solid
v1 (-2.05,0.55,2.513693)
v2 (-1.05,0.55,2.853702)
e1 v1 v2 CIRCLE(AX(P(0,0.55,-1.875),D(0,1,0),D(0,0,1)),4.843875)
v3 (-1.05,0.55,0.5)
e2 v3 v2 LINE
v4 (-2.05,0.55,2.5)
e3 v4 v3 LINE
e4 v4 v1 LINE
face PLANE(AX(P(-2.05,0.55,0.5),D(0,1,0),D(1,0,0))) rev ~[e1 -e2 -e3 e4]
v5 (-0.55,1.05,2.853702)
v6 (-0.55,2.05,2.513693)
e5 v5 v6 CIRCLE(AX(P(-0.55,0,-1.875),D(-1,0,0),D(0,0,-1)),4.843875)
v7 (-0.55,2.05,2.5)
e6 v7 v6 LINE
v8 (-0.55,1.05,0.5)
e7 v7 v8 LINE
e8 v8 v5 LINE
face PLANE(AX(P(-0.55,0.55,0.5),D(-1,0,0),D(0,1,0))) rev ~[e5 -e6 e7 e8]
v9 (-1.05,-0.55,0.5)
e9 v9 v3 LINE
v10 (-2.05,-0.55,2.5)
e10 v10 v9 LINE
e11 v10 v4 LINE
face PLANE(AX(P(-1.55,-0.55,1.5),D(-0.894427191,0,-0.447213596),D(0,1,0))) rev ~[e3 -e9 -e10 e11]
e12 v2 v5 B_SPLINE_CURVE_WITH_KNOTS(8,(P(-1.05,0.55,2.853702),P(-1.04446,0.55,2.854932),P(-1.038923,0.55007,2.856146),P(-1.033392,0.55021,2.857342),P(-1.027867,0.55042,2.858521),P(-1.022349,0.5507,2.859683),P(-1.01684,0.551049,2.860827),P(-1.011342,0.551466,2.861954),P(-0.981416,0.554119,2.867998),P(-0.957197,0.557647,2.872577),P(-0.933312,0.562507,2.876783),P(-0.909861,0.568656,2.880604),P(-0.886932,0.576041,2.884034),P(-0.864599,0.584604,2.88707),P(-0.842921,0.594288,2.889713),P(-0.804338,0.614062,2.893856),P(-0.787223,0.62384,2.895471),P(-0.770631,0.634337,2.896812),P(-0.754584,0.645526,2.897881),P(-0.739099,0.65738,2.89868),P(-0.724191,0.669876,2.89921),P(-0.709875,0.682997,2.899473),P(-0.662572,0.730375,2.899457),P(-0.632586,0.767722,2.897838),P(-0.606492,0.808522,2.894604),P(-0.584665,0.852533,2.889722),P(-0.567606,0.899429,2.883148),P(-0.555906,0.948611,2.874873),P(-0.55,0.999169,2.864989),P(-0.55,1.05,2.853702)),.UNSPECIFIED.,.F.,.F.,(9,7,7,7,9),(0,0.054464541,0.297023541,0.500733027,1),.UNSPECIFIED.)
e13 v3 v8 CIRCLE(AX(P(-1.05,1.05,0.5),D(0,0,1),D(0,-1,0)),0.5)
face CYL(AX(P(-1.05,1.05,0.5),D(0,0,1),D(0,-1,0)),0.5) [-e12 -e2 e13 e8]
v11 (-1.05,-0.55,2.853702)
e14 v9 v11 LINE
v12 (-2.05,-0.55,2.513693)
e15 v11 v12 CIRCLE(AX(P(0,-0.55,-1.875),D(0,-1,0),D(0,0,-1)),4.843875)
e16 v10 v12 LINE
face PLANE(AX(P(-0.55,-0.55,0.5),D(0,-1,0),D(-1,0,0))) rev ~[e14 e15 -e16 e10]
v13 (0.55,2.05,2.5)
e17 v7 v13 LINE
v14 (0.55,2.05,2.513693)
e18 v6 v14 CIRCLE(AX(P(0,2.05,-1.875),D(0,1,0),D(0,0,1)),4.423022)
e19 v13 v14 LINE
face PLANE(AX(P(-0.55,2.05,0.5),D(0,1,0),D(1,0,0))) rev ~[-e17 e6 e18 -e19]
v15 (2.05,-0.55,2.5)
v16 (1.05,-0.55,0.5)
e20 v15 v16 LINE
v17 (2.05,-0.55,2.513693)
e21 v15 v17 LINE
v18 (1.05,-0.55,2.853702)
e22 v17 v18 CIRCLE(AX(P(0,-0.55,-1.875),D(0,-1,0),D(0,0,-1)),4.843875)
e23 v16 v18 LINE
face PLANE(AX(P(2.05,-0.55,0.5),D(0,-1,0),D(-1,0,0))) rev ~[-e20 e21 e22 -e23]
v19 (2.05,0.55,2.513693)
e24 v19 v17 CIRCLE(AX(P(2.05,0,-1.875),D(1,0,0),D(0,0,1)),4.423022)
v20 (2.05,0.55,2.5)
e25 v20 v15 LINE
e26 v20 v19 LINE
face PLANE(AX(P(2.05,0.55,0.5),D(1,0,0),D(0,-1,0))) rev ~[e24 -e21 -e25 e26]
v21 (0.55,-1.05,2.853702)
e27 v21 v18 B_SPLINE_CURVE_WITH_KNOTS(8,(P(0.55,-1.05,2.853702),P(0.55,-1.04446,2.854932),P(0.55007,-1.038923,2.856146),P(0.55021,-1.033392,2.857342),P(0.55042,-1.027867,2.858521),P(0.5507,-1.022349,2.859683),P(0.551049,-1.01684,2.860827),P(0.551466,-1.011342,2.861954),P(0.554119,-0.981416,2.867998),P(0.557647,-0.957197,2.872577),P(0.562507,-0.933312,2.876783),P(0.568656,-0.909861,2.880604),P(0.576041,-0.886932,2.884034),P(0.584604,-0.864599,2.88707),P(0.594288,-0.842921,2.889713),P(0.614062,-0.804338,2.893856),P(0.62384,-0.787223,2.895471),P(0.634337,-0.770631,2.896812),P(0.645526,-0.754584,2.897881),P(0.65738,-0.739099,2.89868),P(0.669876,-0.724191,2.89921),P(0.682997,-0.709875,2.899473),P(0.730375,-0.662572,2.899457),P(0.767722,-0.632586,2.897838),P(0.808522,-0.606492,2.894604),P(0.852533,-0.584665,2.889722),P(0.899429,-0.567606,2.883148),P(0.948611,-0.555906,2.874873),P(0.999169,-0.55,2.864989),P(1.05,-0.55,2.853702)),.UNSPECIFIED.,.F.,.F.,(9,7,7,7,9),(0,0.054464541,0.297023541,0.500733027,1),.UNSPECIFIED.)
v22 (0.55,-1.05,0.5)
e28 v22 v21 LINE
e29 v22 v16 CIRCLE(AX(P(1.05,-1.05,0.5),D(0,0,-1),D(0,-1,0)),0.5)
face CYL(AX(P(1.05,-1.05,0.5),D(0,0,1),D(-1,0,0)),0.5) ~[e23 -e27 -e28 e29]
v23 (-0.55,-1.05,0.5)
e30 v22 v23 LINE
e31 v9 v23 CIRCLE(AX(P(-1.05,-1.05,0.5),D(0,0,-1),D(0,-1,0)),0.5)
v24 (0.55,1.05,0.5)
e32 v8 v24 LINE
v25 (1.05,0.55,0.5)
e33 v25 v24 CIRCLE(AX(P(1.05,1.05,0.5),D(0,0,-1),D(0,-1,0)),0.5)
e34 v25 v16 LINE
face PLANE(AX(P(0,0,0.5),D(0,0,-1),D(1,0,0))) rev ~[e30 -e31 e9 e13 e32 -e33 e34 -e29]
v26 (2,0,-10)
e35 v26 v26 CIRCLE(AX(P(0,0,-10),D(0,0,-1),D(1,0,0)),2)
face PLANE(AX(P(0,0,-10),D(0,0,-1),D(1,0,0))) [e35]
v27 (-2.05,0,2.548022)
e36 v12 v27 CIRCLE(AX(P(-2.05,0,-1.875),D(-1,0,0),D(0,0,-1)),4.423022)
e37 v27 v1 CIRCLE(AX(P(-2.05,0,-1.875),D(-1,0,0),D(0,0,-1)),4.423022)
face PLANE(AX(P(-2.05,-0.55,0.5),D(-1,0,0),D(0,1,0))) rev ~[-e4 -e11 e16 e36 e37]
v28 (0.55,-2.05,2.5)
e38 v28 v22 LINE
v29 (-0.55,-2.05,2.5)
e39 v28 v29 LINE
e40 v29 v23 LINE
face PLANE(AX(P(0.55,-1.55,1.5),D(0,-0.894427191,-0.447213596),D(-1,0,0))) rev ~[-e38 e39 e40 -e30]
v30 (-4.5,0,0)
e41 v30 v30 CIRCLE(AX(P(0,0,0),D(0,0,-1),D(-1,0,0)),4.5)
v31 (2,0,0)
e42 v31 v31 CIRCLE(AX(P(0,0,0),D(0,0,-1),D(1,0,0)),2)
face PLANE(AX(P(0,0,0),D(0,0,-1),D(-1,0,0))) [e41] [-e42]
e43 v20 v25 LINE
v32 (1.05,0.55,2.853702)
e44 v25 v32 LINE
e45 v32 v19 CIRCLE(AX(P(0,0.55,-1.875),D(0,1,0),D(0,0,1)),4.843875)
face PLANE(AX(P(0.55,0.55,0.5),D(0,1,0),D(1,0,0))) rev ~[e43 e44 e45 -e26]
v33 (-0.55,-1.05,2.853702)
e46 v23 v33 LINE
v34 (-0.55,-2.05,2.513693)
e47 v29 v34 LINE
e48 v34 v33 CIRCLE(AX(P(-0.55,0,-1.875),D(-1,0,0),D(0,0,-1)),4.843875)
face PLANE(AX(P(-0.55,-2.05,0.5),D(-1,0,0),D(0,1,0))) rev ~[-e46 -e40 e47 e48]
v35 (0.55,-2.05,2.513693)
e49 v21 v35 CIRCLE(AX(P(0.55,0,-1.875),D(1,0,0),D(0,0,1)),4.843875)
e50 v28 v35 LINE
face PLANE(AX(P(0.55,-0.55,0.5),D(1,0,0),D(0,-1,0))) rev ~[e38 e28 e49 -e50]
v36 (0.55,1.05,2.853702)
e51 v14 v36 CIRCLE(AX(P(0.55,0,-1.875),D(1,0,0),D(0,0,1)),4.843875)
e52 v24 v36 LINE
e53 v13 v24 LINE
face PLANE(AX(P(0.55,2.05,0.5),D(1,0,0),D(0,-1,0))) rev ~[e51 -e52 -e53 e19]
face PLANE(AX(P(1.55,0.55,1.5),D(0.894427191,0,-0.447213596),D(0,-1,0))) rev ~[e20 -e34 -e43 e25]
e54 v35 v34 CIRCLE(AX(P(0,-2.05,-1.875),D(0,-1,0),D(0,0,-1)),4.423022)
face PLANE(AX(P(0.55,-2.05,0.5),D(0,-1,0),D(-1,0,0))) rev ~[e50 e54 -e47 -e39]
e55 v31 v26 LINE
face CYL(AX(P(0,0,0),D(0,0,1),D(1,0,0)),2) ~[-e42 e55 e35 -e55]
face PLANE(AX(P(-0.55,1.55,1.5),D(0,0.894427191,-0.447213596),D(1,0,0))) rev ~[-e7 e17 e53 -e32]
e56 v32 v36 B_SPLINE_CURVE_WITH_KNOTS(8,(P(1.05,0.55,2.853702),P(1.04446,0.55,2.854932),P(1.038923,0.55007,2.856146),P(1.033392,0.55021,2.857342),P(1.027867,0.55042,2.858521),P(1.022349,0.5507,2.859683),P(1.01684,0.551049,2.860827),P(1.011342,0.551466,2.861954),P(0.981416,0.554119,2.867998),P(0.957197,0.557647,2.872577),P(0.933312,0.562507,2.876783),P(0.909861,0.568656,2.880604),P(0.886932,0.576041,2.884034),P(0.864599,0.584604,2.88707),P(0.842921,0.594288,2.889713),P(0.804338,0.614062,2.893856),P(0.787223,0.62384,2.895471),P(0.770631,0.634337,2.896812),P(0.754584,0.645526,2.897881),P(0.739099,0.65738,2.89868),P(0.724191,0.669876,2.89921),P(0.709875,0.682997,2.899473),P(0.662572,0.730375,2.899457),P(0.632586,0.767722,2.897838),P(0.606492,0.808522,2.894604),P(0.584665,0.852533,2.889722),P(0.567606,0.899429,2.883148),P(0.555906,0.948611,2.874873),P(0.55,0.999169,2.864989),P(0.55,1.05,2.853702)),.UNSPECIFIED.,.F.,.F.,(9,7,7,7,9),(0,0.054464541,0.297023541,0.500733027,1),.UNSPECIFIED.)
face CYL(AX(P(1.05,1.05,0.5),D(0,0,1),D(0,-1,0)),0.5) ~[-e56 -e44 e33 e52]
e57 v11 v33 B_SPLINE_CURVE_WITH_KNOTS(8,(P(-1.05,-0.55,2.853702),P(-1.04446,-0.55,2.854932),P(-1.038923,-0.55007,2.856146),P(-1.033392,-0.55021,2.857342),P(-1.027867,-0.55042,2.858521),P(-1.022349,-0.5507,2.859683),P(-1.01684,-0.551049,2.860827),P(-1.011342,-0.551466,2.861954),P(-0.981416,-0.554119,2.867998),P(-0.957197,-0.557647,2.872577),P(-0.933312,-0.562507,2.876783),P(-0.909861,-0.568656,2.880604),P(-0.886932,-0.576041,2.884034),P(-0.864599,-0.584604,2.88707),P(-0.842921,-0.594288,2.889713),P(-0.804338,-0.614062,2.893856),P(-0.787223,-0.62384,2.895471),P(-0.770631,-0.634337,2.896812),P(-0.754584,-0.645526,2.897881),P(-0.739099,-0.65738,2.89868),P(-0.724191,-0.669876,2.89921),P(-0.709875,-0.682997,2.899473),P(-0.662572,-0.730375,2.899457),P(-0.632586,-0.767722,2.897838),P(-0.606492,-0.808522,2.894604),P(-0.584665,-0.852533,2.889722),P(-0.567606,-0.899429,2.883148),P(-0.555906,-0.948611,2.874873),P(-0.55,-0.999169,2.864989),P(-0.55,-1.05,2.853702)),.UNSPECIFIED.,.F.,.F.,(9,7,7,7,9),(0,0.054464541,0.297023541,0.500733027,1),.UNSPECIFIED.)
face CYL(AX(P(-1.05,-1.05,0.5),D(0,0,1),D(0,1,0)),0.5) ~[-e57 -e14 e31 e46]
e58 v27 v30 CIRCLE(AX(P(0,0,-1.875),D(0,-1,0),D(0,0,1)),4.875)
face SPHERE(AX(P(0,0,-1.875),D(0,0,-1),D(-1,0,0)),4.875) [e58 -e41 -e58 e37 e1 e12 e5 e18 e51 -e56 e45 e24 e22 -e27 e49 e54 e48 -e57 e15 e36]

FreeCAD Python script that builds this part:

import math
import FreeCAD as App
import Part
import Sketcher
from FreeCAD import Vector


def edges_at(feature, points):
    """Names of the edges that pass closest to the given points."""
    edges = feature.Shape.Edges
    near = lambda p: min(range(len(edges)), key=lambda i: edges[i].distToShape(Part.Vertex(*p))[0])
    return sorted({f"Edge{near(p) + 1}" for p in points})

doc = App.newDocument("Part")
body = doc.addObject("PartDesign::Body", "Body")

sketch1 = body.newObject("Sketcher::SketchObject", "Sketch")
sketch1.AttachmentSupport = (doc.getObject("XZ_Plane"), [""])
sketch1.MapMode = "FlatFace"
sketch1.addGeometry([
    Part.LineSegment(Vector(0, 0, 0), Vector(0, 3, 0)),
    Part.ArcOfCircle(Part.Circle(Vector(0, -1.9, 0), Vector(0, 0, 1), 4.9), math.radians(90), math.radians(157)),
    Part.LineSegment(Vector(-4.5, 0, 0), Vector(0, 0, 0)),
], False)
sketch1.addConstraint([
    Sketcher.Constraint("Coincident", 0, 2, 1, 1),
    Sketcher.Constraint("Coincident", 1, 2, 2, 1),
    Sketcher.Constraint("Coincident", 2, 2, 0, 1),
    Sketcher.Constraint("Vertical", 0),
    Sketcher.Constraint("Horizontal", 2),
    Sketcher.Constraint("Coincident", 2, 2, -1, 1),
    Sketcher.Constraint("PointOnObject", 1, 3, -2),
    Sketcher.Constraint("DistanceY", 0, 1, 0, 2, 3.0),
    Sketcher.Constraint("DistanceX", 2, 1, 2, 2, 4.5),
])
revolution = body.newObject("PartDesign::Revolution", "Revolution")
revolution.Profile = sketch1
revolution.ReferenceAxis = (sketch1, ["V_Axis"])
revolution.Angle = 360

sketch2 = body.newObject("Sketcher::SketchObject", "Sketch001")
sketch2.AttachmentSupport = (doc.getObject("XY_Plane"), [""])
sketch2.MapMode = "FlatFace"
sketch2.addGeometry(Part.Circle(Vector(0, 0, 0), Vector(0, 0, 1), 2), False)
sketch2.addConstraint([
    Sketcher.Constraint("Coincident", 0, 3, -1, 1),
    Sketcher.Constraint("Diameter", 0, 4.0),
])
pad1 = body.newObject("PartDesign::Pad", "Pad")
pad1.Profile = sketch2
pad1.Length = 10
pad1.Reversed = True

sketch3 = body.newObject("Sketcher::SketchObject", "Sketch002")
sketch3.AttachmentSupport = (doc.getObject("XY_Plane"), [""])
sketch3.MapMode = "FlatFace"
sketch3.AttachmentOffset = App.Placement(Vector(0, 0, 0.5), App.Rotation())
sketch3.addGeometry([
    Part.LineSegment(Vector(0.6, -2, 0), Vector(-0.6, -2, 0)),
    Part.LineSegment(Vector(-0.6, -2, 0), Vector(-0.6, -0.6, 0)),
    Part.LineSegment(Vector(-0.6, -0.6, 0), Vector(-2, -0.6, 0)),
    Part.LineSegment(Vector(-2, -0.6, 0), Vector(-2, 0.6, 0)),
    Part.LineSegment(Vector(-2, 0.6, 0), Vector(-0.6, 0.6, 0)),
    Part.LineSegment(Vector(-0.6, 0.6, 0), Vector(-0.6, 2, 0)),
    Part.LineSegment(Vector(-0.6, 2, 0), Vector(0.6, 2, 0)),
    Part.LineSegment(Vector(0.6, 2, 0), Vector(0.6, 0.6, 0)),
    Part.LineSegment(Vector(0.6, 0.6, 0), Vector(2, 0.6, 0)),
    Part.LineSegment(Vector(2, 0.6, 0), Vector(2, -0.6, 0)),
    Part.LineSegment(Vector(2, -0.6, 0), Vector(0.6, -0.6, 0)),
    Part.LineSegment(Vector(0.6, -0.6, 0), Vector(0.6, -2, 0)),
], False)
sketch3.addConstraint([
    Sketcher.Constraint("Coincident", 0, 2, 1, 1),
    Sketcher.Constraint("Coincident", 1, 2, 2, 1),
    Sketcher.Constraint("Coincident", 2, 2, 3, 1),
    Sketcher.Constraint("Coincident", 3, 2, 4, 1),
    Sketcher.Constraint("Coincident", 4, 2, 5, 1),
    Sketcher.Constraint("Coincident", 5, 2, 6, 1),
    Sketcher.Constraint("Coincident", 6, 2, 7, 1),
    Sketcher.Constraint("Coincident", 7, 2, 8, 1),
    Sketcher.Constraint("Coincident", 8, 2, 9, 1),
    Sketcher.Constraint("Coincident", 9, 2, 10, 1),
    Sketcher.Constraint("Coincident", 10, 2, 11, 1),
    Sketcher.Constraint("Coincident", 11, 2, 0, 1),
    Sketcher.Constraint("Horizontal", 0),
    Sketcher.Constraint("Vertical", 1),
    Sketcher.Constraint("Horizontal", 2),
    Sketcher.Constraint("Vertical", 3),
    Sketcher.Constraint("Horizontal", 4),
    Sketcher.Constraint("Vertical", 5),
    Sketcher.Constraint("Horizontal", 6),
    Sketcher.Constraint("Vertical", 7),
    Sketcher.Constraint("Horizontal", 8),
    Sketcher.Constraint("Vertical", 9),
    Sketcher.Constraint("Horizontal", 10),
    Sketcher.Constraint("Vertical", 11),
    Sketcher.Constraint("Symmetric", 0, 2, 6, 2, -1, 1),
    Sketcher.Constraint("Symmetric", 2, 2, 8, 2, -1, 1),
    Sketcher.Constraint("Symmetric", 4, 2, 10, 2, -1, 1),
    Sketcher.Constraint("Symmetric", 4, 2, 7, 2, -2),
    Sketcher.Constraint("Equal", 10, 1),
    Sketcher.Constraint("Equal", 6, 3),
    Sketcher.Constraint("DistanceX", 0, 2, 0, 1, 1.1),
    Sketcher.Constraint("DistanceX", 2, 2, 2, 1, 1.5),
])
pocket1 = body.newObject("PartDesign::Pocket", "Pocket")
pocket1.Profile = sketch3
pocket1.Length = 2.501
pocket1.Reversed = True
doc.recompute()

chamfer = body.newObject("PartDesign::Chamfer", "Chamfer")
chamfer.Base = (pocket1, edges_at(pocket1, [
    (2.05, 0, 0.5),
    (0, 2.05, 0.5),
    (0, -2.05, 0.5),
    (-2.05, 0, 0.5),
]))
chamfer.ChamferType = "Two distances"
chamfer.Size = 2
chamfer.Size2 = 1
doc.recompute()

fillet = body.newObject("PartDesign::Fillet", "Fillet")
fillet.Base = (chamfer, edges_at(chamfer, [
    (0.55, -0.55, 1.719),
    (0.55, 0.55, 1.719),
    (-0.55, -0.55, 1.719),
    (-0.55, 0.55, 1.719),
]))
fillet.Radius = 0.5

doc.recompute()
